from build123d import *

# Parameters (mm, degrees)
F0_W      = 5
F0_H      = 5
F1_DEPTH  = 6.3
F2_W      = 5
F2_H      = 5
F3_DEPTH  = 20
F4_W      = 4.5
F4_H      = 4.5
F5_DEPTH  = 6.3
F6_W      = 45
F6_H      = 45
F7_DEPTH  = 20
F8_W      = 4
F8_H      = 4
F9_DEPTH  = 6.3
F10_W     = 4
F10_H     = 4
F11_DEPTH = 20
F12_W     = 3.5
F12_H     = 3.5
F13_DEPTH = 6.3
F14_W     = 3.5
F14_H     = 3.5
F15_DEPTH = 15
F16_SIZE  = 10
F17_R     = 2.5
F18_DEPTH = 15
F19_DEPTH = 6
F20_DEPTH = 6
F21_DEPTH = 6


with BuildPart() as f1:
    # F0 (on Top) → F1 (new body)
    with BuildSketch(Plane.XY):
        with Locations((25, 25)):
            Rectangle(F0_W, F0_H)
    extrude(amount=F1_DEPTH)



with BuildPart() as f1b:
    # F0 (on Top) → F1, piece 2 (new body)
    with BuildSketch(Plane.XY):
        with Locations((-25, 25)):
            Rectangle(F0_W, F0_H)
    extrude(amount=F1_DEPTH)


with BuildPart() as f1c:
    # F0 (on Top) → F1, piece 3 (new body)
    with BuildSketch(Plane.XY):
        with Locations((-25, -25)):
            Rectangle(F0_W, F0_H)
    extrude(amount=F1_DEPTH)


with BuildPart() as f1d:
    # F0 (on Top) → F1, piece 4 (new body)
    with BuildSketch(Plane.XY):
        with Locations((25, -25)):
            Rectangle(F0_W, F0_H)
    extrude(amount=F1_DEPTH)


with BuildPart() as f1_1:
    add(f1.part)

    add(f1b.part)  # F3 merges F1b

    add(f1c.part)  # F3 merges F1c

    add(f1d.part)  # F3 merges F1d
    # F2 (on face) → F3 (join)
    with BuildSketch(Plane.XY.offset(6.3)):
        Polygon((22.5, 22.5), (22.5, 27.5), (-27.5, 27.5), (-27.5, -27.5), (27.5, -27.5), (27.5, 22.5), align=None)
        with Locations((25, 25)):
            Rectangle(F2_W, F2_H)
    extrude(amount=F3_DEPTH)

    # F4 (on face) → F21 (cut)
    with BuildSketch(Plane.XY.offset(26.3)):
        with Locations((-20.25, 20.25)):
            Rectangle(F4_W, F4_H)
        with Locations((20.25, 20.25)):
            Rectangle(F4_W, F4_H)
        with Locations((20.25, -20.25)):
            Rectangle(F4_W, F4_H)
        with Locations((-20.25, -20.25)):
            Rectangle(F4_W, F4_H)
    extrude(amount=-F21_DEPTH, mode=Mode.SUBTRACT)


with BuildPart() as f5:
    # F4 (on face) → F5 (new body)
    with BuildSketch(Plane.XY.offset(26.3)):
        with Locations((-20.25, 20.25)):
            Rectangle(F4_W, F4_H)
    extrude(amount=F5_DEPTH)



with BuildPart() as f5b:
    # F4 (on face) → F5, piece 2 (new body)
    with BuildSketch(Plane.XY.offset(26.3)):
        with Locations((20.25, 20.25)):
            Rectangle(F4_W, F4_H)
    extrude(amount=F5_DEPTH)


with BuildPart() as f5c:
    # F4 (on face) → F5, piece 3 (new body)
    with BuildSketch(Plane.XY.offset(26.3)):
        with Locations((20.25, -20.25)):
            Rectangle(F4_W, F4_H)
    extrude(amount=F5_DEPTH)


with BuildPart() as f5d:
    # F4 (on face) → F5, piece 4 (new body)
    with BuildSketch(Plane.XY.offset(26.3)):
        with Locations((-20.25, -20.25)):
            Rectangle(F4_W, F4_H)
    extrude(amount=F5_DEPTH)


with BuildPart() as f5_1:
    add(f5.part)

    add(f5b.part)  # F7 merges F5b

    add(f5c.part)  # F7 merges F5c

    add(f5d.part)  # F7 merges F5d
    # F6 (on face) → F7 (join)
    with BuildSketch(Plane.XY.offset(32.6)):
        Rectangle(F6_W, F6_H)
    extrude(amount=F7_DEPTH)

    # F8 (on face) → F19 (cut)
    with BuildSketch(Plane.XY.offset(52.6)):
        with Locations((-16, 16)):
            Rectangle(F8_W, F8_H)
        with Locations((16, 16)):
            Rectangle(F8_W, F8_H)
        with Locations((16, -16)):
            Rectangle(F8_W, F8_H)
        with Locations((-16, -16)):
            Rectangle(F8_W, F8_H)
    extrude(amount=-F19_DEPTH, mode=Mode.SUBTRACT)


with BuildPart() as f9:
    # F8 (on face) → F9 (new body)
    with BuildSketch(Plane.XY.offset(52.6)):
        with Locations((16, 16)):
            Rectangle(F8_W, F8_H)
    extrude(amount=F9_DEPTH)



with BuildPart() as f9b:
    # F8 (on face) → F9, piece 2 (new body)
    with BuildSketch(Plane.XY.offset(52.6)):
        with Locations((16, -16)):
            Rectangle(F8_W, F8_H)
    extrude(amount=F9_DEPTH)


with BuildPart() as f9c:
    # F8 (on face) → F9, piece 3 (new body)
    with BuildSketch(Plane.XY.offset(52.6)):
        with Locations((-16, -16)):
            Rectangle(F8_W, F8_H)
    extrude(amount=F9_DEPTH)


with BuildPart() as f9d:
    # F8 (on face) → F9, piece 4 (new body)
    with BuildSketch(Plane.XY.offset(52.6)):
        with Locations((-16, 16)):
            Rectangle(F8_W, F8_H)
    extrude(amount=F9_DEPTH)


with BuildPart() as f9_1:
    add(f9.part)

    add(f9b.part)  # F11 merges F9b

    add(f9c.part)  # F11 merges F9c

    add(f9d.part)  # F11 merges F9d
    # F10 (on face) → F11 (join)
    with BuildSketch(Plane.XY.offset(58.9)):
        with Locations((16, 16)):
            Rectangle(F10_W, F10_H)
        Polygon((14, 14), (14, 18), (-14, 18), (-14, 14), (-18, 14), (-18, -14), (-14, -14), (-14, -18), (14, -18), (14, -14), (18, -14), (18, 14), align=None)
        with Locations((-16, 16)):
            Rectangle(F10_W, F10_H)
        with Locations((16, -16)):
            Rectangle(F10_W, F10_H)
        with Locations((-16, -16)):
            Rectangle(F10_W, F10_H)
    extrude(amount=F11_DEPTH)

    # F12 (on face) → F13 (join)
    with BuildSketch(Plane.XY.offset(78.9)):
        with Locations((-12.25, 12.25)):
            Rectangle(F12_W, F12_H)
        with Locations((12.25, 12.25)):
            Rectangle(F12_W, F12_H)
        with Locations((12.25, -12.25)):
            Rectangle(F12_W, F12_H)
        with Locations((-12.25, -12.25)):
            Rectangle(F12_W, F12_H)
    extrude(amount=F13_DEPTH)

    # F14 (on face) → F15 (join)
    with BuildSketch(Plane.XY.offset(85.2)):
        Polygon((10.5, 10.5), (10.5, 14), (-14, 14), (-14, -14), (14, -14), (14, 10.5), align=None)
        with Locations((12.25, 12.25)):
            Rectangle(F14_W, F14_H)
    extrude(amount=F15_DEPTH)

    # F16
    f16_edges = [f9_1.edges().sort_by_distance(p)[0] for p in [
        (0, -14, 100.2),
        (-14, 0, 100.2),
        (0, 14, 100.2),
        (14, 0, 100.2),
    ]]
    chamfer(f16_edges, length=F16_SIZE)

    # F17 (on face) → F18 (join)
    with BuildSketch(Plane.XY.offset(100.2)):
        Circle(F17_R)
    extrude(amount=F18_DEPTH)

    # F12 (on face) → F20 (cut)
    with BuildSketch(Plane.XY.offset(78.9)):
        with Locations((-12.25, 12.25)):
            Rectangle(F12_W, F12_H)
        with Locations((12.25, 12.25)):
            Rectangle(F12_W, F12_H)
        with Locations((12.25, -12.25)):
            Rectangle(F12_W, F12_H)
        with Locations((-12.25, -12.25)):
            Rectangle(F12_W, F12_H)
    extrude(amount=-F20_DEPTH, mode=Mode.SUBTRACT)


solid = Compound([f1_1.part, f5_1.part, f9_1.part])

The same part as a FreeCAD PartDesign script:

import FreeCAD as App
import Part
import Sketcher

V = App.Vector
Q = App.Units.Quantity


def edges_at(feature, points):
    """Names of the edges that pass closest to the given points."""
    edges = feature.Shape.Edges
    near = lambda p: min(range(len(edges)), key=lambda i: edges[i].distToShape(Part.Vertex(*p))[0])
    return sorted({f"Edge{near(p) + 1}" for p in points})

doc = App.newDocument("Part")
body = doc.addObject("PartDesign::Body", "Body")

sketch1 = body.newObject("Sketcher::SketchObject", "Sketch")
sketch1.AttachmentSupport = (doc.getObject("XY_Plane"), [""])
sketch1.MapMode = "FlatFace"
sketch1.addGeometry([
    Part.LineSegment(V(22, 28, 0), V(22, 22, 0)),
    Part.LineSegment(V(22, 22, 0), V(28, 22, 0)),
    Part.LineSegment(V(28, 22, 0), V(28, 28, 0)),
    Part.LineSegment(V(28, 28, 0), V(22, 28, 0)),
], False)
sketch1.addConstraint([
    Sketcher.Constraint("Coincident", 0, 2, 1, 1),
    Sketcher.Constraint("Coincident", 1, 2, 2, 1),
    Sketcher.Constraint("Coincident", 2, 2, 3, 1),
    Sketcher.Constraint("Coincident", 3, 2, 0, 1),
    Sketcher.Constraint("Vertical", 0),
    Sketcher.Constraint("Horizontal", 1),
    Sketcher.Constraint("Vertical", 2),
    Sketcher.Constraint("Horizontal", 3),
    Sketcher.Constraint("Equal", 3, 0),
    Sketcher.Constraint("DistanceX", 1, 1, 1, 2, Q("5 mm")),
    Sketcher.Constraint("DistanceX", -1, 1, 0, 2, Q("22.5 mm")),
    Sketcher.Constraint("DistanceY", -1, 1, 0, 2, Q("22.5 mm")),
])
pad1 = body.newObject("PartDesign::Pad", "Pad")
pad1.Profile = sketch1
pad1.Length = 6.3
body2 = doc.addObject("PartDesign::Body", "Body001")

sketch2 = body2.newObject("Sketcher::SketchObject", "Sketch001")
sketch2.AttachmentSupport = (doc.getObject("XY_Plane001"), [""])
sketch2.MapMode = "FlatFace"
sketch2.addGeometry([
    Part.LineSegment(V(-28, 28, 0), V(-28, 22, 0)),
    Part.LineSegment(V(-28, 22, 0), V(-22, 22, 0)),
    Part.LineSegment(V(-22, 22, 0), V(-22, 28, 0)),
    Part.LineSegment(V(-22, 28, 0), V(-28, 28, 0)),
], False)
sketch2.addConstraint([
    Sketcher.Constraint("Coincident", 0, 2, 1, 1),
    Sketcher.Constraint("Coincident", 1, 2, 2, 1),
    Sketcher.Constraint("Coincident", 2, 2, 3, 1),
    Sketcher.Constraint("Coincident", 3, 2, 0, 1),
    Sketcher.Constraint("Vertical", 0),
    Sketcher.Constraint("Horizontal", 1),
    Sketcher.Constraint("Vertical", 2),
    Sketcher.Constraint("Horizontal", 3),
    Sketcher.Constraint("Equal", 3, 0),
    Sketcher.Constraint("DistanceX", 1, 1, 1, 2, Q("5 mm")),
    Sketcher.Constraint("DistanceX", 0, 2, -1, 1, Q("27.5 mm")),
    Sketcher.Constraint("DistanceY", -1, 1, 0, 2, Q("22.5 mm")),
])
pad2 = body2.newObject("PartDesign::Pad", "Pad001")
pad2.Profile = sketch2
pad2.Length = 6.3
body3 = doc.addObject("PartDesign::Body", "Body002")

sketch3 = body3.newObject("Sketcher::SketchObject", "Sketch002")
sketch3.AttachmentSupport = (doc.getObject("XY_Plane002"), [""])
sketch3.MapMode = "FlatFace"
sketch3.addGeometry([
    Part.LineSegment(V(-28, -22, 0), V(-28, -28, 0)),
    Part.LineSegment(V(-28, -28, 0), V(-22, -28, 0)),
    Part.LineSegment(V(-22, -28, 0), V(-22, -22, 0)),
    Part.LineSegment(V(-22, -22, 0), V(-28, -22, 0)),
], False)
sketch3.addConstraint([
    Sketcher.Constraint("Coincident", 0, 2, 1, 1),
    Sketcher.Constraint("Coincident", 1, 2, 2, 1),
    Sketcher.Constraint("Coincident", 2, 2, 3, 1),
    Sketcher.Constraint("Coincident", 3, 2, 0, 1),
    Sketcher.Constraint("Vertical", 0),
    Sketcher.Constraint("Horizontal", 1),
    Sketcher.Constraint("Vertical", 2),
    Sketcher.Constraint("Horizontal", 3),
    Sketcher.Constraint("Equal", 3, 0),
    Sketcher.Constraint("DistanceX", 1, 1, 1, 2, Q("5 mm")),
    Sketcher.Constraint("DistanceX", 0, 2, -1, 1, Q("27.5 mm")),
    Sketcher.Constraint("DistanceY", 0, 2, -1, 1, Q("27.5 mm")),
])
pad3 = body3.newObject("PartDesign::Pad", "Pad002")
pad3.Profile = sketch3
pad3.Length = 6.3
body4 = doc.addObject("PartDesign::Body", "Body003")

sketch4 = body4.newObject("Sketcher::SketchObject", "Sketch003")
sketch4.AttachmentSupport = (doc.getObject("XY_Plane003"), [""])
sketch4.MapMode = "FlatFace"
sketch4.addGeometry([
    Part.LineSegment(V(22, -22, 0), V(22, -28, 0)),
    Part.LineSegment(V(22, -28, 0), V(28, -28, 0)),
    Part.LineSegment(V(28, -28, 0), V(28, -22, 0)),
    Part.LineSegment(V(28, -22, 0), V(22, -22, 0)),
], False)
sketch4.addConstraint([
    Sketcher.Constraint("Coincident", 0, 2, 1, 1),
    Sketcher.Constraint("Coincident", 1, 2, 2, 1),
    Sketcher.Constraint("Coincident", 2, 2, 3, 1),
    Sketcher.Constraint("Coincident", 3, 2, 0, 1),
    Sketcher.Constraint("Vertical", 0),
    Sketcher.Constraint("Horizontal", 1),
    Sketcher.Constraint("Vertical", 2),
    Sketcher.Constraint("Horizontal", 3),
    Sketcher.Constraint("Equal", 3, 0),
    Sketcher.Constraint("DistanceX", 1, 1, 1, 2, Q("5 mm")),
    Sketcher.Constraint("DistanceX", -1, 1, 0, 2, Q("22.5 mm")),
    Sketcher.Constraint("DistanceY", 0, 2, -1, 1, Q("27.5 mm")),
])
pad4 = body4.newObject("PartDesign::Pad", "Pad003")
pad4.Profile = sketch4
pad4.Length = 6.3
body.AllowCompound = True
doc.recompute()

boolean = body.newObject("PartDesign::Boolean", "Boolean")
boolean.Type = "Fuse"
boolean.addObjects([body2])
doc.recompute()

boolean2 = body.newObject("PartDesign::Boolean", "Boolean001")
boolean2.Type = "Fuse"
boolean2.addObjects([body3])
doc.recompute()

boolean3 = body.newObject("PartDesign::Boolean", "Boolean002")
boolean3.Type = "Fuse"
boolean3.addObjects([body4])

sketch5 = body.newObject("Sketcher::SketchObject", "Sketch004")
sketch5.AttachmentSupport = (doc.getObject("XY_Plane"), [""])
sketch5.MapMode = "FlatFace"
sketch5.AttachmentOffset = App.Placement(V(0, 0, 6.3), App.Rotation())
sketch5.addGeometry([
    Part.LineSegment(V(-28, 28, 0), V(-28, -28, 0)),
    Part.LineSegment(V(-28, -28, 0), V(28, -28, 0)),
    Part.LineSegment(V(28, -28, 0), V(28, 28, 0)),
    Part.LineSegment(V(28, 28, 0), V(-28, 28, 0)),
], False)
sketch5.addConstraint([
    Sketcher.Constraint("Coincident", 0, 2, 1, 1),
    Sketcher.Constraint("Coincident", 1, 2, 2, 1),
    Sketcher.Constraint("Coincident", 2, 2, 3, 1),
    Sketcher.Constraint("Coincident", 3, 2, 0, 1),
    Sketcher.Constraint("Vertical", 0),
    Sketcher.Constraint("Horizontal", 1),
    Sketcher.Constraint("Vertical", 2),
    Sketcher.Constraint("Horizontal", 3),
    Sketcher.Constraint("Symmetric", 0, 2, 2, 2, -1, 1),
    Sketcher.Constraint("Equal", 3, 0),
    Sketcher.Constraint("DistanceX", 1, 1, 1, 2, Q("55 mm")),
])
pad5 = body.newObject("PartDesign::Pad", "Pad004")
pad5.Profile = sketch5
pad5.Length = 20

sketch6 = body.newObject("Sketcher::SketchObject", "Sketch005")
sketch6.AttachmentSupport = (doc.getObject("XY_Plane"), [""])
sketch6.MapMode = "FlatFace"
sketch6.AttachmentOffset = App.Placement(V(0, 0, 26.3), App.Rotation())
sketch6.addGeometry([
    Part.LineSegment(V(-22.5, 22.5, 0), V(-22.5, 18, 0)),
    Part.LineSegment(V(-22.5, 18, 0), V(-18, 18, 0)),
    Part.LineSegment(V(-18, 18, 0), V(-18, 22.5, 0)),
    Part.LineSegment(V(-18, 22.5, 0), V(-22.5, 22.5, 0)),
    Part.LineSegment(V(18, 22.5, 0), V(18, 18, 0)),
    Part.LineSegment(V(18, 18, 0), V(22.5, 18, 0)),
    Part.LineSegment(V(22.5, 18, 0), V(22.5, 22.5, 0)),
    Part.LineSegment(V(22.5, 22.5, 0), V(18, 22.5, 0)),
    Part.LineSegment(V(18, -18, 0), V(18, -22.5, 0)),
    Part.LineSegment(V(18, -22.5, 0), V(22.5, -22.5, 0)),
    Part.LineSegment(V(22.5, -22.5, 0), V(22.5, -18, 0)),
    Part.LineSegment(V(22.5, -18, 0), V(18, -18, 0)),
    Part.LineSegment(V(-22.5, -18, 0), V(-22.5, -22.5, 0)),
    Part.LineSegment(V(-22.5, -22.5, 0), V(-18, -22.5, 0)),
    Part.LineSegment(V(-18, -22.5, 0), V(-18, -18, 0)),
    Part.LineSegment(V(-18, -18, 0), V(-22.5, -18, 0)),
], False)
sketch6.addConstraint([
    Sketcher.Constraint("Coincident", 0, 2, 1, 1),
    Sketcher.Constraint("Coincident", 1, 2, 2, 1),
    Sketcher.Constraint("Coincident", 2, 2, 3, 1),
    Sketcher.Constraint("Coincident", 3, 2, 0, 1),
    Sketcher.Constraint("Coincident", 4, 2, 5, 1),
    Sketcher.Constraint("Coincident", 5, 2, 6, 1),
    Sketcher.Constraint("Coincident", 6, 2, 7, 1),
    Sketcher.Constraint("Coincident", 7, 2, 4, 1),
    Sketcher.Constraint("Coincident", 8, 2, 9, 1),
    Sketcher.Constraint("Coincident", 9, 2, 10, 1),
    Sketcher.Constraint("Coincident", 10, 2, 11, 1),
    Sketcher.Constraint("Coincident", 11, 2, 8, 1),
    Sketcher.Constraint("Coincident", 12, 2, 13, 1),
    Sketcher.Constraint("Coincident", 13, 2, 14, 1),
    Sketcher.Constraint("Coincident", 14, 2, 15, 1),
    Sketcher.Constraint("Coincident", 15, 2, 12, 1),
    Sketcher.Constraint("Vertical", 0),
    Sketcher.Constraint("Horizontal", 1),
    Sketcher.Constraint("Vertical", 2),
    Sketcher.Constraint("Horizontal", 3),
    Sketcher.Constraint("Vertical", 4),
    Sketcher.Constraint("Horizontal", 5),
    Sketcher.Constraint("Vertical", 6),
    Sketcher.Constraint("Horizontal", 7),
    Sketcher.Constraint("Vertical", 8),
    Sketcher.Constraint("Horizontal", 9),
    Sketcher.Constraint("Vertical", 10),
    Sketcher.Constraint("Horizontal", 11),
    Sketcher.Constraint("Vertical", 12),
    Sketcher.Constraint("Horizontal", 13),
    Sketcher.Constraint("Vertical", 14),
    Sketcher.Constraint("Horizontal", 15),
    Sketcher.Constraint("Symmetric", 2, 2, 8, 2, -1, 1),
    Sketcher.Constraint("Symmetric", 0, 2, 10, 2, -1, 1),
    Sketcher.Constraint("Symmetric", 6, 2, 12, 2, -1, 1),
    Sketcher.Constraint("Symmetric", 4, 2, 14, 2, -1, 1),
    Sketcher.Constraint("Symmetric", 1, 2, 4, 2, -2),
    Sketcher.Constraint("Symmetric", 3, 2, 6, 2, -2),
    Sketcher.Constraint("Equal", 15, 0),
    Sketcher.Constraint("DistanceX", 1, 1, 1, 2, Q("4.5 mm")),
    Sketcher.Constraint("DistanceY", -1, 1, 0, 2, Q("18 mm")),
    Sketcher.Constraint("DistanceX", 1, 2, -1, 1, Q("18 mm")),
])
pocket1 = body.newObject("PartDesign::Pocket", "Pocket")
pocket1.Profile = sketch6
pocket1.Length = 6
body5 = doc.addObject("PartDesign::Body", "Body004")

sketch7 = body5.newObject("Sketcher::SketchObject", "Sketch006")
sketch7.AttachmentSupport = (doc.getObject("XY_Plane004"), [""])
sketch7.MapMode = "FlatFace"
sketch7.AttachmentOffset = App.Placement(V(0, 0, 26.3), App.Rotation())
sketch7.addGeometry([
    Part.LineSegment(V(-22.5, 22.5, 0), V(-22.5, 18, 0)),
    Part.LineSegment(V(-22.5, 18, 0), V(-18, 18, 0)),
    Part.LineSegment(V(-18, 18, 0), V(-18, 22.5, 0)),
    Part.LineSegment(V(-18, 22.5, 0), V(-22.5, 22.5, 0)),
], False)
sketch7.addConstraint([
    Sketcher.Constraint("Coincident", 0, 2, 1, 1),
    Sketcher.Constraint("Coincident", 1, 2, 2, 1),
    Sketcher.Constraint("Coincident", 2, 2, 3, 1),
    Sketcher.Constraint("Coincident", 3, 2, 0, 1),
    Sketcher.Constraint("Vertical", 0),
    Sketcher.Constraint("Horizontal", 1),
    Sketcher.Constraint("Vertical", 2),
    Sketcher.Constraint("Horizontal", 3),
    Sketcher.Constraint("Equal", 3, 0),
    Sketcher.Constraint("DistanceX", 1, 1, 1, 2, Q("4.5 mm")),
    Sketcher.Constraint("DistanceY", -1, 1, 0, 2, Q("18 mm")),
    Sketcher.Constraint("DistanceX", 1, 2, -1, 1, Q("18 mm")),
])
pad6 = body5.newObject("PartDesign::Pad", "Pad005")
pad6.Profile = sketch7
pad6.Length = 6.3
body6 = doc.addObject("PartDesign::Body", "Body005")

sketch8 = body6.newObject("Sketcher::SketchObject", "Sketch007")
sketch8.AttachmentSupport = (doc.getObject("XY_Plane005"), [""])
sketch8.MapMode = "FlatFace"
sketch8.AttachmentOffset = App.Placement(V(0, 0, 26.3), App.Rotation())
sketch8.addGeometry([
    Part.LineSegment(V(18, 22.5, 0), V(18, 18, 0)),
    Part.LineSegment(V(18, 18, 0), V(22.5, 18, 0)),
    Part.LineSegment(V(22.5, 18, 0), V(22.5, 22.5, 0)),
    Part.LineSegment(V(22.5, 22.5, 0), V(18, 22.5, 0)),
], False)
sketch8.addConstraint([
    Sketcher.Constraint("Coincident", 0, 2, 1, 1),
    Sketcher.Constraint("Coincident", 1, 2, 2, 1),
    Sketcher.Constraint("Coincident", 2, 2, 3, 1),
    Sketcher.Constraint("Coincident", 3, 2, 0, 1),
    Sketcher.Constraint("Vertical", 0),
    Sketcher.Constraint("Horizontal", 1),
    Sketcher.Constraint("Vertical", 2),
    Sketcher.Constraint("Horizontal", 3),
    Sketcher.Constraint("Equal", 3, 0),
    Sketcher.Constraint("DistanceX", 1, 1, 1, 2, Q("4.5 mm")),
    Sketcher.Constraint("DistanceX", -1, 1, 0, 2, Q("18 mm")),
    Sketcher.Constraint("DistanceY", -1, 1, 0, 2, Q("18 mm")),
])
pad7 = body6.newObject("PartDesign::Pad", "Pad006")
pad7.Profile = sketch8
pad7.Length = 6.3
body7 = doc.addObject("PartDesign::Body", "Body006")

sketch9 = body7.newObject("Sketcher::SketchObject", "Sketch008")
sketch9.AttachmentSupport = (doc.getObject("XY_Plane006"), [""])
sketch9.MapMode = "FlatFace"
sketch9.AttachmentOffset = App.Placement(V(0, 0, 26.3), App.Rotation())
sketch9.addGeometry([
    Part.LineSegment(V(18, -18, 0), V(18, -22.5, 0)),
    Part.LineSegment(V(18, -22.5, 0), V(22.5, -22.5, 0)),
    Part.LineSegment(V(22.5, -22.5, 0), V(22.5, -18, 0)),
    Part.LineSegment(V(22.5, -18, 0), V(18, -18, 0)),
], False)
sketch9.addConstraint([
    Sketcher.Constraint("Coincident", 0, 2, 1, 1),
    Sketcher.Constraint("Coincident", 1, 2, 2, 1),
    Sketcher.Constraint("Coincident", 2, 2, 3, 1),
    Sketcher.Constraint("Coincident", 3, 2, 0, 1),
    Sketcher.Constraint("Vertical", 0),
    Sketcher.Constraint("Horizontal", 1),
    Sketcher.Constraint("Vertical", 2),
    Sketcher.Constraint("Horizontal", 3),
    Sketcher.Constraint("Equal", 3, 0),
    Sketcher.Constraint("DistanceX", 1, 1, 1, 2, Q("4.5 mm")),
    Sketcher.Constraint("DistanceX", -1, 1, 0, 2, Q("18 mm")),
    Sketcher.Constraint("DistanceY", 2, 2, -1, 1, Q("18 mm")),
])
pad8 = body7.newObject("PartDesign::Pad", "Pad007")
pad8.Profile = sketch9
pad8.Length = 6.3
body8 = doc.addObject("PartDesign::Body", "Body007")

sketch10 = body8.newObject("Sketcher::SketchObject", "Sketch009")
sketch10.AttachmentSupport = (doc.getObject("XY_Plane007"), [""])
sketch10.MapMode = "FlatFace"
sketch10.AttachmentOffset = App.Placement(V(0, 0, 26.3), App.Rotation())
sketch10.addGeometry([
    Part.LineSegment(V(-22.5, -18, 0), V(-22.5, -22.5, 0)),
    Part.LineSegment(V(-22.5, -22.5, 0), V(-18, -22.5, 0)),
    Part.LineSegment(V(-18, -22.5, 0), V(-18, -18, 0)),
    Part.LineSegment(V(-18, -18, 0), V(-22.5, -18, 0)),
], False)
sketch10.addConstraint([
    Sketcher.Constraint("Coincident", 0, 2, 1, 1),
    Sketcher.Constraint("Coincident", 1, 2, 2, 1),
    Sketcher.Constraint("Coincident", 2, 2, 3, 1),
    Sketcher.Constraint("Coincident", 3, 2, 0, 1),
    Sketcher.Constraint("Vertical", 0),
    Sketcher.Constraint("Horizontal", 1),
    Sketcher.Constraint("Vertical", 2),
    Sketcher.Constraint("Horizontal", 3),
    Sketcher.Constraint("Equal", 3, 0),
    Sketcher.Constraint("DistanceX", 1, 1, 1, 2, Q("4.5 mm")),
    Sketcher.Constraint("DistanceX", 1, 2, -1, 1, Q("18 mm")),
    Sketcher.Constraint("DistanceY", 2, 2, -1, 1, Q("18 mm")),
])
pad9 = body8.newObject("PartDesign::Pad", "Pad008")
pad9.Profile = sketch10
pad9.Length = 6.3
body5.AllowCompound = True
doc.recompute()

boolean4 = body5.newObject("PartDesign::Boolean", "Boolean003")
boolean4.Type = "Fuse"
boolean4.addObjects([body6])
doc.recompute()

boolean5 = body5.newObject("PartDesign::Boolean", "Boolean004")
boolean5.Type = "Fuse"
boolean5.addObjects([body7])
doc.recompute()

boolean6 = body5.newObject("PartDesign::Boolean", "Boolean005")
boolean6.Type = "Fuse"
boolean6.addObjects([body8])

sketch11 = body5.newObject("Sketcher::SketchObject", "Sketch010")
sketch11.AttachmentSupport = (doc.getObject("XY_Plane004"), [""])
sketch11.MapMode = "FlatFace"
sketch11.AttachmentOffset = App.Placement(V(0, 0, 32.6), App.Rotation())
sketch11.addGeometry([
    Part.LineSegment(V(-22, 22, 0), V(-22, -22, 0)),
    Part.LineSegment(V(-22, -22, 0), V(22, -22, 0)),
    Part.LineSegment(V(22, -22, 0), V(22, 22, 0)),
    Part.LineSegment(V(22, 22, 0), V(-22, 22, 0)),
], False)
sketch11.addConstraint([
    Sketcher.Constraint("Coincident", 0, 2, 1, 1),
    Sketcher.Constraint("Coincident", 1, 2, 2, 1),
    Sketcher.Constraint("Coincident", 2, 2, 3, 1),
    Sketcher.Constraint("Coincident", 3, 2, 0, 1),
    Sketcher.Constraint("Vertical", 0),
    Sketcher.Constraint("Horizontal", 1),
    Sketcher.Constraint("Vertical", 2),
    Sketcher.Constraint("Horizontal", 3),
    Sketcher.Constraint("Symmetric", 0, 2, 2, 2, -1, 1),
    Sketcher.Constraint("Equal", 3, 0),
    Sketcher.Constraint("DistanceX", 1, 1, 1, 2, Q("45 mm")),
])
pad10 = body5.newObject("PartDesign::Pad", "Pad009")
pad10.Profile = sketch11
pad10.Length = 20

sketch12 = body5.newObject("Sketcher::SketchObject", "Sketch011")
sketch12.AttachmentSupport = (doc.getObject("XY_Plane004"), [""])
sketch12.MapMode = "FlatFace"
sketch12.AttachmentOffset = App.Placement(V(0, 0, 52.6), App.Rotation())
sketch12.addGeometry([
    Part.LineSegment(V(-18, 18, 0), V(-18, 14, 0)),
    Part.LineSegment(V(-18, 14, 0), V(-14, 14, 0)),
    Part.LineSegment(V(-14, 14, 0), V(-14, 18, 0)),
    Part.LineSegment(V(-14, 18, 0), V(-18, 18, 0)),
    Part.LineSegment(V(14, 18, 0), V(14, 14, 0)),
    Part.LineSegment(V(14, 14, 0), V(18, 14, 0)),
    Part.LineSegment(V(18, 14, 0), V(18, 18, 0)),
    Part.LineSegment(V(18, 18, 0), V(14, 18, 0)),
    Part.LineSegment(V(14, -14, 0), V(14, -18, 0)),
    Part.LineSegment(V(14, -18, 0), V(18, -18, 0)),
    Part.LineSegment(V(18, -18, 0), V(18, -14, 0)),
    Part.LineSegment(V(18, -14, 0), V(14, -14, 0)),
    Part.LineSegment(V(-18, -14, 0), V(-18, -18, 0)),
    Part.LineSegment(V(-18, -18, 0), V(-14, -18, 0)),
    Part.LineSegment(V(-14, -18, 0), V(-14, -14, 0)),
    Part.LineSegment(V(-14, -14, 0), V(-18, -14, 0)),
], False)
sketch12.addConstraint([
    Sketcher.Constraint("Coincident", 0, 2, 1, 1),
    Sketcher.Constraint("Coincident", 1, 2, 2, 1),
    Sketcher.Constraint("Coincident", 2, 2, 3, 1),
    Sketcher.Constraint("Coincident", 3, 2, 0, 1),
    Sketcher.Constraint("Coincident", 4, 2, 5, 1),
    Sketcher.Constraint("Coincident", 5, 2, 6, 1),
    Sketcher.Constraint("Coincident", 6, 2, 7, 1),
    Sketcher.Constraint("Coincident", 7, 2, 4, 1),
    Sketcher.Constraint("Coincident", 8, 2, 9, 1),
    Sketcher.Constraint("Coincident", 9, 2, 10, 1),
    Sketcher.Constraint("Coincident", 10, 2, 11, 1),
    Sketcher.Constraint("Coincident", 11, 2, 8, 1),
    Sketcher.Constraint("Coincident", 12, 2, 13, 1),
    Sketcher.Constraint("Coincident", 13, 2, 14, 1),
    Sketcher.Constraint("Coincident", 14, 2, 15, 1),
    Sketcher.Constraint("Coincident", 15, 2, 12, 1),
    Sketcher.Constraint("Vertical", 0),
    Sketcher.Constraint("Horizontal", 1),
    Sketcher.Constraint("Vertical", 2),
    Sketcher.Constraint("Horizontal", 3),
    Sketcher.Constraint("Vertical", 4),
    Sketcher.Constraint("Horizontal", 5),
    Sketcher.Constraint("Vertical", 6),
    Sketcher.Constraint("Horizontal", 7),
    Sketcher.Constraint("Vertical", 8),
    Sketcher.Constraint("Horizontal", 9),
    Sketcher.Constraint("Vertical", 10),
    Sketcher.Constraint("Horizontal", 11),
    Sketcher.Constraint("Vertical", 12),
    Sketcher.Constraint("Horizontal", 13),
    Sketcher.Constraint("Vertical", 14),
    Sketcher.Constraint("Horizontal", 15),
    Sketcher.Constraint("Symmetric", 2, 2, 8, 2, -1, 1),
    Sketcher.Constraint("Symmetric", 0, 2, 10, 2, -1, 1),
    Sketcher.Constraint("Symmetric", 6, 2, 12, 2, -1, 1),
    Sketcher.Constraint("Symmetric", 4, 2, 14, 2, -1, 1),
    Sketcher.Constraint("Symmetric", 1, 2, 4, 2, -2),
    Sketcher.Constraint("Symmetric", 3, 2, 6, 2, -2),
    Sketcher.Constraint("Equal", 15, 0),
    Sketcher.Constraint("DistanceX", 1, 1, 1, 2, Q("4 mm")),
    Sketcher.Constraint("DistanceX", 0, 2, -1, 1, Q("18 mm")),
    Sketcher.Constraint("DistanceY", -1, 1, 0, 2, Q("14 mm")),
])
pocket2 = body5.newObject("PartDesign::Pocket", "Pocket001")
pocket2.Profile = sketch12
pocket2.Length = 6
body9 = doc.addObject("PartDesign::Body", "Body008")

sketch13 = body9.newObject("Sketcher::SketchObject", "Sketch012")
sketch13.AttachmentSupport = (doc.getObject("XY_Plane008"), [""])
sketch13.MapMode = "FlatFace"
sketch13.AttachmentOffset = App.Placement(V(0, 0, 52.6), App.Rotation())
sketch13.addGeometry([
    Part.LineSegment(V(14, 18, 0), V(14, 14, 0)),
    Part.LineSegment(V(14, 14, 0), V(18, 14, 0)),
    Part.LineSegment(V(18, 14, 0), V(18, 18, 0)),
    Part.LineSegment(V(18, 18, 0), V(14, 18, 0)),
], False)
sketch13.addConstraint([
    Sketcher.Constraint("Coincident", 0, 2, 1, 1),
    Sketcher.Constraint("Coincident", 1, 2, 2, 1),
    Sketcher.Constraint("Coincident", 2, 2, 3, 1),
    Sketcher.Constraint("Coincident", 3, 2, 0, 1),
    Sketcher.Constraint("Vertical", 0),
    Sketcher.Constraint("Horizontal", 1),
    Sketcher.Constraint("Vertical", 2),
    Sketcher.Constraint("Horizontal", 3),
    Sketcher.Constraint("Equal", 3, 0),
    Sketcher.Constraint("DistanceX", 1, 1, 1, 2, Q("4 mm")),
    Sketcher.Constraint("DistanceX", -1, 1, 0, 2, Q("14 mm")),
    Sketcher.Constraint("DistanceY", -1, 1, 0, 2, Q("14 mm")),
])
pad11 = body9.newObject("PartDesign::Pad", "Pad010")
pad11.Profile = sketch13
pad11.Length = 6.3
body10 = doc.addObject("PartDesign::Body", "Body009")

sketch14 = body10.newObject("Sketcher::SketchObject", "Sketch013")
sketch14.AttachmentSupport = (doc.getObject("XY_Plane009"), [""])
sketch14.MapMode = "FlatFace"
sketch14.AttachmentOffset = App.Placement(V(0, 0, 52.6), App.Rotation())
sketch14.addGeometry([
    Part.LineSegment(V(14, -14, 0), V(14, -18, 0)),
    Part.LineSegment(V(14, -18, 0), V(18, -18, 0)),
    Part.LineSegment(V(18, -18, 0), V(18, -14, 0)),
    Part.LineSegment(V(18, -14, 0), V(14, -14, 0)),
], False)
sketch14.addConstraint([
    Sketcher.Constraint("Coincident", 0, 2, 1, 1),
    Sketcher.Constraint("Coincident", 1, 2, 2, 1),
    Sketcher.Constraint("Coincident", 2, 2, 3, 1),
    Sketcher.Constraint("Coincident", 3, 2, 0, 1),
    Sketcher.Constraint("Vertical", 0),
    Sketcher.Constraint("Horizontal", 1),
    Sketcher.Constraint("Vertical", 2),
    Sketcher.Constraint("Horizontal", 3),
    Sketcher.Constraint("Equal", 3, 0),
    Sketcher.Constraint("DistanceX", 1, 1, 1, 2, Q("4 mm")),
    Sketcher.Constraint("DistanceX", -1, 1, 0, 2, Q("14 mm")),
    Sketcher.Constraint("DistanceY", 0, 2, -1, 1, Q("18 mm")),
])
pad12 = body10.newObject("PartDesign::Pad", "Pad011")
pad12.Profile = sketch14
pad12.Length = 6.3
body11 = doc.addObject("PartDesign::Body", "Body010")

sketch15 = body11.newObject("Sketcher::SketchObject", "Sketch014")
sketch15.AttachmentSupport = (doc.getObject("XY_Plane010"), [""])
sketch15.MapMode = "FlatFace"
sketch15.AttachmentOffset = App.Placement(V(0, 0, 52.6), App.Rotation())
sketch15.addGeometry([
    Part.LineSegment(V(-18, -14, 0), V(-18, -18, 0)),
    Part.LineSegment(V(-18, -18, 0), V(-14, -18, 0)),
    Part.LineSegment(V(-14, -18, 0), V(-14, -14, 0)),
    Part.LineSegment(V(-14, -14, 0), V(-18, -14, 0)),
], False)
sketch15.addConstraint([
    Sketcher.Constraint("Coincident", 0, 2, 1, 1),
    Sketcher.Constraint("Coincident", 1, 2, 2, 1),
    Sketcher.Constraint("Coincident", 2, 2, 3, 1),
    Sketcher.Constraint("Coincident", 3, 2, 0, 1),
    Sketcher.Constraint("Vertical", 0),
    Sketcher.Constraint("Horizontal", 1),
    Sketcher.Constraint("Vertical", 2),
    Sketcher.Constraint("Horizontal", 3),
    Sketcher.Constraint("Equal", 3, 0),
    Sketcher.Constraint("DistanceX", 1, 1, 1, 2, Q("4 mm")),
    Sketcher.Constraint("DistanceX", 0, 2, -1, 1, Q("18 mm")),
    Sketcher.Constraint("DistanceY", 0, 2, -1, 1, Q("18 mm")),
])
pad13 = body11.newObject("PartDesign::Pad", "Pad012")
pad13.Profile = sketch15
pad13.Length = 6.3
body12 = doc.addObject("PartDesign::Body", "Body011")

sketch16 = body12.newObject("Sketcher::SketchObject", "Sketch015")
sketch16.AttachmentSupport = (doc.getObject("XY_Plane011"), [""])
sketch16.MapMode = "FlatFace"
sketch16.AttachmentOffset = App.Placement(V(0, 0, 52.6), App.Rotation())
sketch16.addGeometry([
    Part.LineSegment(V(-18, 18, 0), V(-18, 14, 0)),
    Part.LineSegment(V(-18, 14, 0), V(-14, 14, 0)),
    Part.LineSegment(V(-14, 14, 0), V(-14, 18, 0)),
    Part.LineSegment(V(-14, 18, 0), V(-18, 18, 0)),
], False)
sketch16.addConstraint([
    Sketcher.Constraint("Coincident", 0, 2, 1, 1),
    Sketcher.Constraint("Coincident", 1, 2, 2, 1),
    Sketcher.Constraint("Coincident", 2, 2, 3, 1),
    Sketcher.Constraint("Coincident", 3, 2, 0, 1),
    Sketcher.Constraint("Vertical", 0),
    Sketcher.Constraint("Horizontal", 1),
    Sketcher.Constraint("Vertical", 2),
    Sketcher.Constraint("Horizontal", 3),
    Sketcher.Constraint("Equal", 3, 0),
    Sketcher.Constraint("DistanceX", 1, 1, 1, 2, Q("4 mm")),
    Sketcher.Constraint("DistanceX", 0, 2, -1, 1, Q("18 mm")),
    Sketcher.Constraint("DistanceY", -1, 1, 0, 2, Q("14 mm")),
])
pad14 = body12.newObject("PartDesign::Pad", "Pad013")
pad14.Profile = sketch16
pad14.Length = 6.3
body9.AllowCompound = True
doc.recompute()

boolean7 = body9.newObject("PartDesign::Boolean", "Boolean006")
boolean7.Type = "Fuse"
boolean7.addObjects([body10])
doc.recompute()

boolean8 = body9.newObject("PartDesign::Boolean", "Boolean007")
boolean8.Type = "Fuse"
boolean8.addObjects([body11])
doc.recompute()

boolean9 = body9.newObject("PartDesign::Boolean", "Boolean008")
boolean9.Type = "Fuse"
boolean9.addObjects([body12])

sketch17 = body9.newObject("Sketcher::SketchObject", "Sketch016")
sketch17.AttachmentSupport = (doc.getObject("XY_Plane008"), [""])
sketch17.MapMode = "FlatFace"
sketch17.AttachmentOffset = App.Placement(V(0, 0, 58.9), App.Rotation())
sketch17.addGeometry([
    Part.LineSegment(V(18, 18, 0), V(-18, 18, 0)),
    Part.LineSegment(V(-18, 18, 0), V(-18, -18, 0)),
    Part.LineSegment(V(-18, -18, 0), V(18, -18, 0)),
    Part.LineSegment(V(18, -18, 0), V(18, 18, 0)),
], False)
sketch17.addConstraint([
    Sketcher.Constraint("Coincident", 0, 2, 1, 1),
    Sketcher.Constraint("Coincident", 1, 2, 2, 1),
    Sketcher.Constraint("Coincident", 2, 2, 3, 1),
    Sketcher.Constraint("Coincident", 3, 2, 0, 1),
    Sketcher.Constraint("Horizontal", 0),
    Sketcher.Constraint("Vertical", 1),
    Sketcher.Constraint("Horizontal", 2),
    Sketcher.Constraint("Vertical", 3),
    Sketcher.Constraint("Symmetric", 0, 2, 2, 2, -1, 1),
    Sketcher.Constraint("Equal", 2, 1),
    Sketcher.Constraint("DistanceX", 0, 2, 0, 1, Q("36 mm")),
])
pad15 = body9.newObject("PartDesign::Pad", "Pad014")
pad15.Profile = sketch17
pad15.Length = 20

sketch18 = body9.newObject("Sketcher::SketchObject", "Sketch017")
sketch18.AttachmentSupport = (doc.getObject("XY_Plane008"), [""])
sketch18.MapMode = "FlatFace"
sketch18.AttachmentOffset = App.Placement(V(0, 0, 78.9), App.Rotation())
sketch18.addGeometry([
    Part.LineSegment(V(-14, 14, 0), V(-14, 10.5, 0)),
    Part.LineSegment(V(-14, 10.5, 0), V(-10.5, 10.5, 0)),
    Part.LineSegment(V(-10.5, 10.5, 0), V(-10.5, 14, 0)),
    Part.LineSegment(V(-10.5, 14, 0), V(-14, 14, 0)),
    Part.LineSegment(V(10.5, 14, 0), V(10.5, 10.5, 0)),
    Part.LineSegment(V(10.5, 10.5, 0), V(14, 10.5, 0)),
    Part.LineSegment(V(14, 10.5, 0), V(14, 14, 0)),
    Part.LineSegment(V(14, 14, 0), V(10.5, 14, 0)),
    Part.LineSegment(V(10.5, -10.5, 0), V(10.5, -14, 0)),
    Part.LineSegment(V(10.5, -14, 0), V(14, -14, 0)),
    Part.LineSegment(V(14, -14, 0), V(14, -10.5, 0)),
    Part.LineSegment(V(14, -10.5, 0), V(10.5, -10.5, 0)),
    Part.LineSegment(V(-14, -10.5, 0), V(-14, -14, 0)),
    Part.LineSegment(V(-14, -14, 0), V(-10.5, -14, 0)),
    Part.LineSegment(V(-10.5, -14, 0), V(-10.5, -10.5, 0)),
    Part.LineSegment(V(-10.5, -10.5, 0), V(-14, -10.5, 0)),
], False)
sketch18.addConstraint([
    Sketcher.Constraint("Coincident", 0, 2, 1, 1),
    Sketcher.Constraint("Coincident", 1, 2, 2, 1),
    Sketcher.Constraint("Coincident", 2, 2, 3, 1),
    Sketcher.Constraint("Coincident", 3, 2, 0, 1),
    Sketcher.Constraint("Coincident", 4, 2, 5, 1),
    Sketcher.Constraint("Coincident", 5, 2, 6, 1),
    Sketcher.Constraint("Coincident", 6, 2, 7, 1),
    Sketcher.Constraint("Coincident", 7, 2, 4, 1),
    Sketcher.Constraint("Coincident", 8, 2, 9, 1),
    Sketcher.Constraint("Coincident", 9, 2, 10, 1),
    Sketcher.Constraint("Coincident", 10, 2, 11, 1),
    Sketcher.Constraint("Coincident", 11, 2, 8, 1),
    Sketcher.Constraint("Coincident", 12, 2, 13, 1),
    Sketcher.Constraint("Coincident", 13, 2, 14, 1),
    Sketcher.Constraint("Coincident", 14, 2, 15, 1),
    Sketcher.Constraint("Coincident", 15, 2, 12, 1),
    Sketcher.Constraint("Vertical", 0),
    Sketcher.Constraint("Horizontal", 1),
    Sketcher.Constraint("Vertical", 2),
    Sketcher.Constraint("Horizontal", 3),
    Sketcher.Constraint("Vertical", 4),
    Sketcher.Constraint("Horizontal", 5),
    Sketcher.Constraint("Vertical", 6),
    Sketcher.Constraint("Horizontal", 7),
    Sketcher.Constraint("Vertical", 8),
    Sketcher.Constraint("Horizontal", 9),
    Sketcher.Constraint("Vertical", 10),
    Sketcher.Constraint("Horizontal", 11),
    Sketcher.Constraint("Vertical", 12),
    Sketcher.Constraint("Horizontal", 13),
    Sketcher.Constraint("Vertical", 14),
    Sketcher.Constraint("Horizontal", 15),
    Sketcher.Constraint("Symmetric", 2, 2, 8, 2, -1, 1),
    Sketcher.Constraint("Symmetric", 0, 2, 10, 2, -1, 1),
    Sketcher.Constraint("Symmetric", 6, 2, 12, 2, -1, 1),
    Sketcher.Constraint("Symmetric", 4, 2, 14, 2, -1, 1),
    Sketcher.Constraint("Symmetric", 1, 2, 4, 2, -2),
    Sketcher.Constraint("Symmetric", 3, 2, 6, 2, -2),
    Sketcher.Constraint("Equal", 15, 0),
    Sketcher.Constraint("DistanceX", 1, 1, 1, 2, Q("3.5 mm")),
    Sketcher.Constraint("DistanceX", 0, 2, -1, 1, Q("14 mm")),
    Sketcher.Constraint("DistanceY", -1, 1, 2, 2, Q("14 mm")),
])
pad16 = body9.newObject("PartDesign::Pad", "Pad015")
pad16.Profile = sketch18
pad16.Length = 6.3

sketch19 = body9.newObject("Sketcher::SketchObject", "Sketch018")
sketch19.AttachmentSupport = (doc.getObject("XY_Plane008"), [""])
sketch19.MapMode = "FlatFace"
sketch19.AttachmentOffset = App.Placement(V(0, 0, 85.2), App.Rotation())
sketch19.addGeometry([
    Part.LineSegment(V(-14, 14, 0), V(-14, -14, 0)),
    Part.LineSegment(V(-14, -14, 0), V(14, -14, 0)),
    Part.LineSegment(V(14, -14, 0), V(14, 14, 0)),
    Part.LineSegment(V(14, 14, 0), V(-14, 14, 0)),
], False)
sketch19.addConstraint([
    Sketcher.Constraint("Coincident", 0, 2, 1, 1),
    Sketcher.Constraint("Coincident", 1, 2, 2, 1),
    Sketcher.Constraint("Coincident", 2, 2, 3, 1),
    Sketcher.Constraint("Coincident", 3, 2, 0, 1),
    Sketcher.Constraint("Vertical", 0),
    Sketcher.Constraint("Horizontal", 1),
    Sketcher.Constraint("Vertical", 2),
    Sketcher.Constraint("Horizontal", 3),
    Sketcher.Constraint("Symmetric", 0, 2, 2, 2, -1, 1),
    Sketcher.Constraint("Equal", 3, 0),
    Sketcher.Constraint("DistanceX", 1, 1, 1, 2, Q("28 mm")),
])
pad17 = body9.newObject("PartDesign::Pad", "Pad016")
pad17.Profile = sketch19
pad17.Length = 15
doc.recompute()

chamfer = body9.newObject("PartDesign::Chamfer", "Chamfer")
chamfer.Base = (pad17, edges_at(pad17, [
    (0, -14, 100.2),
    (-14, 0, 100.2),
    (0, 14, 100.2),
    (14, 0, 100.2),
]))
chamfer.Size = 10

sketch20 = body9.newObject("Sketcher::SketchObject", "Sketch019")
sketch20.AttachmentSupport = (doc.getObject("XY_Plane008"), [""])
sketch20.MapMode = "FlatFace"
sketch20.AttachmentOffset = App.Placement(V(0, 0, 100.2), App.Rotation())
sketch20.addGeometry(Part.Circle(V(0, 0, 0), V(0, 0, 1), 2.5), False)
sketch20.addConstraint([
    Sketcher.Constraint("Coincident", 0, 3, -1, 1),
    Sketcher.Constraint("Diameter", 0, Q("5 mm")),
])
pad18 = body9.newObject("PartDesign::Pad", "Pad017")
pad18.Profile = sketch20
pad18.Length = 15

sketch21 = body9.newObject("Sketcher::SketchObject", "Sketch020")
sketch21.AttachmentSupport = (doc.getObject("XY_Plane008"), [""])
sketch21.MapMode = "FlatFace"
sketch21.AttachmentOffset = App.Placement(V(0, 0, 78.9), App.Rotation())
sketch21.addGeometry([
    Part.LineSegment(V(-14, 14, 0), V(-14, 10.5, 0)),
    Part.LineSegment(V(-14, 10.5, 0), V(-10.5, 10.5, 0)),
    Part.LineSegment(V(-10.5, 10.5, 0), V(-10.5, 14, 0)),
    Part.LineSegment(V(-10.5, 14, 0), V(-14, 14, 0)),
    Part.LineSegment(V(10.5, 14, 0), V(10.5, 10.5, 0)),
    Part.LineSegment(V(10.5, 10.5, 0), V(14, 10.5, 0)),
    Part.LineSegment(V(14, 10.5, 0), V(14, 14, 0)),
    Part.LineSegment(V(14, 14, 0), V(10.5, 14, 0)),
    Part.LineSegment(V(10.5, -10.5, 0), V(10.5, -14, 0)),
    Part.LineSegment(V(10.5, -14, 0), V(14, -14, 0)),
    Part.LineSegment(V(14, -14, 0), V(14, -10.5, 0)),
    Part.LineSegment(V(14, -10.5, 0), V(10.5, -10.5, 0)),
    Part.LineSegment(V(-14, -10.5, 0), V(-14, -14, 0)),
    Part.LineSegment(V(-14, -14, 0), V(-10.5, -14, 0)),
    Part.LineSegment(V(-10.5, -14, 0), V(-10.5, -10.5, 0)),
    Part.LineSegment(V(-10.5, -10.5, 0), V(-14, -10.5, 0)),
], False)
sketch21.addConstraint([
    Sketcher.Constraint("Coincident", 0, 2, 1, 1),
    Sketcher.Constraint("Coincident", 1, 2, 2, 1),
    Sketcher.Constraint("Coincident", 2, 2, 3, 1),
    Sketcher.Constraint("Coincident", 3, 2, 0, 1),
    Sketcher.Constraint("Coincident", 4, 2, 5, 1),
    Sketcher.Constraint("Coincident", 5, 2, 6, 1),
    Sketcher.Constraint("Coincident", 6, 2, 7, 1),
    Sketcher.Constraint("Coincident", 7, 2, 4, 1),
    Sketcher.Constraint("Coincident", 8, 2, 9, 1),
    Sketcher.Constraint("Coincident", 9, 2, 10, 1),
    Sketcher.Constraint("Coincident", 10, 2, 11, 1),
    Sketcher.Constraint("Coincident", 11, 2, 8, 1),
    Sketcher.Constraint("Coincident", 12, 2, 13, 1),
    Sketcher.Constraint("Coincident", 13, 2, 14, 1),
    Sketcher.Constraint("Coincident", 14, 2, 15, 1),
    Sketcher.Constraint("Coincident", 15, 2, 12, 1),
    Sketcher.Constraint("Vertical", 0),
    Sketcher.Constraint("Horizontal", 1),
    Sketcher.Constraint("Vertical", 2),
    Sketcher.Constraint("Horizontal", 3),
    Sketcher.Constraint("Vertical", 4),
    Sketcher.Constraint("Horizontal", 5),
    Sketcher.Constraint("Vertical", 6),
    Sketcher.Constraint("Horizontal", 7),
    Sketcher.Constraint("Vertical", 8),
    Sketcher.Constraint("Horizontal", 9),
    Sketcher.Constraint("Vertical", 10),
    Sketcher.Constraint("Horizontal", 11),
    Sketcher.Constraint("Vertical", 12),
    Sketcher.Constraint("Horizontal", 13),
    Sketcher.Constraint("Vertical", 14),
    Sketcher.Constraint("Horizontal", 15),
    Sketcher.Constraint("Symmetric", 2, 2, 8, 2, -1, 1),
    Sketcher.Constraint("Symmetric", 0, 2, 10, 2, -1, 1),
    Sketcher.Constraint("Symmetric", 6, 2, 12, 2, -1, 1),
    Sketcher.Constraint("Symmetric", 4, 2, 14, 2, -1, 1),
    Sketcher.Constraint("Symmetric", 1, 2, 4, 2, -2),
    Sketcher.Constraint("Symmetric", 3, 2, 6, 2, -2),
    Sketcher.Constraint("Equal", 15, 0),
    Sketcher.Constraint("DistanceX", 1, 1, 1, 2, Q("3.5 mm")),
    Sketcher.Constraint("DistanceX", 0, 2, -1, 1, Q("14 mm")),
    Sketcher.Constraint("DistanceY", -1, 1, 2, 2, Q("14 mm")),
])
pocket3 = body9.newObject("PartDesign::Pocket", "Pocket002")
pocket3.Profile = sketch21
pocket3.Length = 6

doc.recompute()
